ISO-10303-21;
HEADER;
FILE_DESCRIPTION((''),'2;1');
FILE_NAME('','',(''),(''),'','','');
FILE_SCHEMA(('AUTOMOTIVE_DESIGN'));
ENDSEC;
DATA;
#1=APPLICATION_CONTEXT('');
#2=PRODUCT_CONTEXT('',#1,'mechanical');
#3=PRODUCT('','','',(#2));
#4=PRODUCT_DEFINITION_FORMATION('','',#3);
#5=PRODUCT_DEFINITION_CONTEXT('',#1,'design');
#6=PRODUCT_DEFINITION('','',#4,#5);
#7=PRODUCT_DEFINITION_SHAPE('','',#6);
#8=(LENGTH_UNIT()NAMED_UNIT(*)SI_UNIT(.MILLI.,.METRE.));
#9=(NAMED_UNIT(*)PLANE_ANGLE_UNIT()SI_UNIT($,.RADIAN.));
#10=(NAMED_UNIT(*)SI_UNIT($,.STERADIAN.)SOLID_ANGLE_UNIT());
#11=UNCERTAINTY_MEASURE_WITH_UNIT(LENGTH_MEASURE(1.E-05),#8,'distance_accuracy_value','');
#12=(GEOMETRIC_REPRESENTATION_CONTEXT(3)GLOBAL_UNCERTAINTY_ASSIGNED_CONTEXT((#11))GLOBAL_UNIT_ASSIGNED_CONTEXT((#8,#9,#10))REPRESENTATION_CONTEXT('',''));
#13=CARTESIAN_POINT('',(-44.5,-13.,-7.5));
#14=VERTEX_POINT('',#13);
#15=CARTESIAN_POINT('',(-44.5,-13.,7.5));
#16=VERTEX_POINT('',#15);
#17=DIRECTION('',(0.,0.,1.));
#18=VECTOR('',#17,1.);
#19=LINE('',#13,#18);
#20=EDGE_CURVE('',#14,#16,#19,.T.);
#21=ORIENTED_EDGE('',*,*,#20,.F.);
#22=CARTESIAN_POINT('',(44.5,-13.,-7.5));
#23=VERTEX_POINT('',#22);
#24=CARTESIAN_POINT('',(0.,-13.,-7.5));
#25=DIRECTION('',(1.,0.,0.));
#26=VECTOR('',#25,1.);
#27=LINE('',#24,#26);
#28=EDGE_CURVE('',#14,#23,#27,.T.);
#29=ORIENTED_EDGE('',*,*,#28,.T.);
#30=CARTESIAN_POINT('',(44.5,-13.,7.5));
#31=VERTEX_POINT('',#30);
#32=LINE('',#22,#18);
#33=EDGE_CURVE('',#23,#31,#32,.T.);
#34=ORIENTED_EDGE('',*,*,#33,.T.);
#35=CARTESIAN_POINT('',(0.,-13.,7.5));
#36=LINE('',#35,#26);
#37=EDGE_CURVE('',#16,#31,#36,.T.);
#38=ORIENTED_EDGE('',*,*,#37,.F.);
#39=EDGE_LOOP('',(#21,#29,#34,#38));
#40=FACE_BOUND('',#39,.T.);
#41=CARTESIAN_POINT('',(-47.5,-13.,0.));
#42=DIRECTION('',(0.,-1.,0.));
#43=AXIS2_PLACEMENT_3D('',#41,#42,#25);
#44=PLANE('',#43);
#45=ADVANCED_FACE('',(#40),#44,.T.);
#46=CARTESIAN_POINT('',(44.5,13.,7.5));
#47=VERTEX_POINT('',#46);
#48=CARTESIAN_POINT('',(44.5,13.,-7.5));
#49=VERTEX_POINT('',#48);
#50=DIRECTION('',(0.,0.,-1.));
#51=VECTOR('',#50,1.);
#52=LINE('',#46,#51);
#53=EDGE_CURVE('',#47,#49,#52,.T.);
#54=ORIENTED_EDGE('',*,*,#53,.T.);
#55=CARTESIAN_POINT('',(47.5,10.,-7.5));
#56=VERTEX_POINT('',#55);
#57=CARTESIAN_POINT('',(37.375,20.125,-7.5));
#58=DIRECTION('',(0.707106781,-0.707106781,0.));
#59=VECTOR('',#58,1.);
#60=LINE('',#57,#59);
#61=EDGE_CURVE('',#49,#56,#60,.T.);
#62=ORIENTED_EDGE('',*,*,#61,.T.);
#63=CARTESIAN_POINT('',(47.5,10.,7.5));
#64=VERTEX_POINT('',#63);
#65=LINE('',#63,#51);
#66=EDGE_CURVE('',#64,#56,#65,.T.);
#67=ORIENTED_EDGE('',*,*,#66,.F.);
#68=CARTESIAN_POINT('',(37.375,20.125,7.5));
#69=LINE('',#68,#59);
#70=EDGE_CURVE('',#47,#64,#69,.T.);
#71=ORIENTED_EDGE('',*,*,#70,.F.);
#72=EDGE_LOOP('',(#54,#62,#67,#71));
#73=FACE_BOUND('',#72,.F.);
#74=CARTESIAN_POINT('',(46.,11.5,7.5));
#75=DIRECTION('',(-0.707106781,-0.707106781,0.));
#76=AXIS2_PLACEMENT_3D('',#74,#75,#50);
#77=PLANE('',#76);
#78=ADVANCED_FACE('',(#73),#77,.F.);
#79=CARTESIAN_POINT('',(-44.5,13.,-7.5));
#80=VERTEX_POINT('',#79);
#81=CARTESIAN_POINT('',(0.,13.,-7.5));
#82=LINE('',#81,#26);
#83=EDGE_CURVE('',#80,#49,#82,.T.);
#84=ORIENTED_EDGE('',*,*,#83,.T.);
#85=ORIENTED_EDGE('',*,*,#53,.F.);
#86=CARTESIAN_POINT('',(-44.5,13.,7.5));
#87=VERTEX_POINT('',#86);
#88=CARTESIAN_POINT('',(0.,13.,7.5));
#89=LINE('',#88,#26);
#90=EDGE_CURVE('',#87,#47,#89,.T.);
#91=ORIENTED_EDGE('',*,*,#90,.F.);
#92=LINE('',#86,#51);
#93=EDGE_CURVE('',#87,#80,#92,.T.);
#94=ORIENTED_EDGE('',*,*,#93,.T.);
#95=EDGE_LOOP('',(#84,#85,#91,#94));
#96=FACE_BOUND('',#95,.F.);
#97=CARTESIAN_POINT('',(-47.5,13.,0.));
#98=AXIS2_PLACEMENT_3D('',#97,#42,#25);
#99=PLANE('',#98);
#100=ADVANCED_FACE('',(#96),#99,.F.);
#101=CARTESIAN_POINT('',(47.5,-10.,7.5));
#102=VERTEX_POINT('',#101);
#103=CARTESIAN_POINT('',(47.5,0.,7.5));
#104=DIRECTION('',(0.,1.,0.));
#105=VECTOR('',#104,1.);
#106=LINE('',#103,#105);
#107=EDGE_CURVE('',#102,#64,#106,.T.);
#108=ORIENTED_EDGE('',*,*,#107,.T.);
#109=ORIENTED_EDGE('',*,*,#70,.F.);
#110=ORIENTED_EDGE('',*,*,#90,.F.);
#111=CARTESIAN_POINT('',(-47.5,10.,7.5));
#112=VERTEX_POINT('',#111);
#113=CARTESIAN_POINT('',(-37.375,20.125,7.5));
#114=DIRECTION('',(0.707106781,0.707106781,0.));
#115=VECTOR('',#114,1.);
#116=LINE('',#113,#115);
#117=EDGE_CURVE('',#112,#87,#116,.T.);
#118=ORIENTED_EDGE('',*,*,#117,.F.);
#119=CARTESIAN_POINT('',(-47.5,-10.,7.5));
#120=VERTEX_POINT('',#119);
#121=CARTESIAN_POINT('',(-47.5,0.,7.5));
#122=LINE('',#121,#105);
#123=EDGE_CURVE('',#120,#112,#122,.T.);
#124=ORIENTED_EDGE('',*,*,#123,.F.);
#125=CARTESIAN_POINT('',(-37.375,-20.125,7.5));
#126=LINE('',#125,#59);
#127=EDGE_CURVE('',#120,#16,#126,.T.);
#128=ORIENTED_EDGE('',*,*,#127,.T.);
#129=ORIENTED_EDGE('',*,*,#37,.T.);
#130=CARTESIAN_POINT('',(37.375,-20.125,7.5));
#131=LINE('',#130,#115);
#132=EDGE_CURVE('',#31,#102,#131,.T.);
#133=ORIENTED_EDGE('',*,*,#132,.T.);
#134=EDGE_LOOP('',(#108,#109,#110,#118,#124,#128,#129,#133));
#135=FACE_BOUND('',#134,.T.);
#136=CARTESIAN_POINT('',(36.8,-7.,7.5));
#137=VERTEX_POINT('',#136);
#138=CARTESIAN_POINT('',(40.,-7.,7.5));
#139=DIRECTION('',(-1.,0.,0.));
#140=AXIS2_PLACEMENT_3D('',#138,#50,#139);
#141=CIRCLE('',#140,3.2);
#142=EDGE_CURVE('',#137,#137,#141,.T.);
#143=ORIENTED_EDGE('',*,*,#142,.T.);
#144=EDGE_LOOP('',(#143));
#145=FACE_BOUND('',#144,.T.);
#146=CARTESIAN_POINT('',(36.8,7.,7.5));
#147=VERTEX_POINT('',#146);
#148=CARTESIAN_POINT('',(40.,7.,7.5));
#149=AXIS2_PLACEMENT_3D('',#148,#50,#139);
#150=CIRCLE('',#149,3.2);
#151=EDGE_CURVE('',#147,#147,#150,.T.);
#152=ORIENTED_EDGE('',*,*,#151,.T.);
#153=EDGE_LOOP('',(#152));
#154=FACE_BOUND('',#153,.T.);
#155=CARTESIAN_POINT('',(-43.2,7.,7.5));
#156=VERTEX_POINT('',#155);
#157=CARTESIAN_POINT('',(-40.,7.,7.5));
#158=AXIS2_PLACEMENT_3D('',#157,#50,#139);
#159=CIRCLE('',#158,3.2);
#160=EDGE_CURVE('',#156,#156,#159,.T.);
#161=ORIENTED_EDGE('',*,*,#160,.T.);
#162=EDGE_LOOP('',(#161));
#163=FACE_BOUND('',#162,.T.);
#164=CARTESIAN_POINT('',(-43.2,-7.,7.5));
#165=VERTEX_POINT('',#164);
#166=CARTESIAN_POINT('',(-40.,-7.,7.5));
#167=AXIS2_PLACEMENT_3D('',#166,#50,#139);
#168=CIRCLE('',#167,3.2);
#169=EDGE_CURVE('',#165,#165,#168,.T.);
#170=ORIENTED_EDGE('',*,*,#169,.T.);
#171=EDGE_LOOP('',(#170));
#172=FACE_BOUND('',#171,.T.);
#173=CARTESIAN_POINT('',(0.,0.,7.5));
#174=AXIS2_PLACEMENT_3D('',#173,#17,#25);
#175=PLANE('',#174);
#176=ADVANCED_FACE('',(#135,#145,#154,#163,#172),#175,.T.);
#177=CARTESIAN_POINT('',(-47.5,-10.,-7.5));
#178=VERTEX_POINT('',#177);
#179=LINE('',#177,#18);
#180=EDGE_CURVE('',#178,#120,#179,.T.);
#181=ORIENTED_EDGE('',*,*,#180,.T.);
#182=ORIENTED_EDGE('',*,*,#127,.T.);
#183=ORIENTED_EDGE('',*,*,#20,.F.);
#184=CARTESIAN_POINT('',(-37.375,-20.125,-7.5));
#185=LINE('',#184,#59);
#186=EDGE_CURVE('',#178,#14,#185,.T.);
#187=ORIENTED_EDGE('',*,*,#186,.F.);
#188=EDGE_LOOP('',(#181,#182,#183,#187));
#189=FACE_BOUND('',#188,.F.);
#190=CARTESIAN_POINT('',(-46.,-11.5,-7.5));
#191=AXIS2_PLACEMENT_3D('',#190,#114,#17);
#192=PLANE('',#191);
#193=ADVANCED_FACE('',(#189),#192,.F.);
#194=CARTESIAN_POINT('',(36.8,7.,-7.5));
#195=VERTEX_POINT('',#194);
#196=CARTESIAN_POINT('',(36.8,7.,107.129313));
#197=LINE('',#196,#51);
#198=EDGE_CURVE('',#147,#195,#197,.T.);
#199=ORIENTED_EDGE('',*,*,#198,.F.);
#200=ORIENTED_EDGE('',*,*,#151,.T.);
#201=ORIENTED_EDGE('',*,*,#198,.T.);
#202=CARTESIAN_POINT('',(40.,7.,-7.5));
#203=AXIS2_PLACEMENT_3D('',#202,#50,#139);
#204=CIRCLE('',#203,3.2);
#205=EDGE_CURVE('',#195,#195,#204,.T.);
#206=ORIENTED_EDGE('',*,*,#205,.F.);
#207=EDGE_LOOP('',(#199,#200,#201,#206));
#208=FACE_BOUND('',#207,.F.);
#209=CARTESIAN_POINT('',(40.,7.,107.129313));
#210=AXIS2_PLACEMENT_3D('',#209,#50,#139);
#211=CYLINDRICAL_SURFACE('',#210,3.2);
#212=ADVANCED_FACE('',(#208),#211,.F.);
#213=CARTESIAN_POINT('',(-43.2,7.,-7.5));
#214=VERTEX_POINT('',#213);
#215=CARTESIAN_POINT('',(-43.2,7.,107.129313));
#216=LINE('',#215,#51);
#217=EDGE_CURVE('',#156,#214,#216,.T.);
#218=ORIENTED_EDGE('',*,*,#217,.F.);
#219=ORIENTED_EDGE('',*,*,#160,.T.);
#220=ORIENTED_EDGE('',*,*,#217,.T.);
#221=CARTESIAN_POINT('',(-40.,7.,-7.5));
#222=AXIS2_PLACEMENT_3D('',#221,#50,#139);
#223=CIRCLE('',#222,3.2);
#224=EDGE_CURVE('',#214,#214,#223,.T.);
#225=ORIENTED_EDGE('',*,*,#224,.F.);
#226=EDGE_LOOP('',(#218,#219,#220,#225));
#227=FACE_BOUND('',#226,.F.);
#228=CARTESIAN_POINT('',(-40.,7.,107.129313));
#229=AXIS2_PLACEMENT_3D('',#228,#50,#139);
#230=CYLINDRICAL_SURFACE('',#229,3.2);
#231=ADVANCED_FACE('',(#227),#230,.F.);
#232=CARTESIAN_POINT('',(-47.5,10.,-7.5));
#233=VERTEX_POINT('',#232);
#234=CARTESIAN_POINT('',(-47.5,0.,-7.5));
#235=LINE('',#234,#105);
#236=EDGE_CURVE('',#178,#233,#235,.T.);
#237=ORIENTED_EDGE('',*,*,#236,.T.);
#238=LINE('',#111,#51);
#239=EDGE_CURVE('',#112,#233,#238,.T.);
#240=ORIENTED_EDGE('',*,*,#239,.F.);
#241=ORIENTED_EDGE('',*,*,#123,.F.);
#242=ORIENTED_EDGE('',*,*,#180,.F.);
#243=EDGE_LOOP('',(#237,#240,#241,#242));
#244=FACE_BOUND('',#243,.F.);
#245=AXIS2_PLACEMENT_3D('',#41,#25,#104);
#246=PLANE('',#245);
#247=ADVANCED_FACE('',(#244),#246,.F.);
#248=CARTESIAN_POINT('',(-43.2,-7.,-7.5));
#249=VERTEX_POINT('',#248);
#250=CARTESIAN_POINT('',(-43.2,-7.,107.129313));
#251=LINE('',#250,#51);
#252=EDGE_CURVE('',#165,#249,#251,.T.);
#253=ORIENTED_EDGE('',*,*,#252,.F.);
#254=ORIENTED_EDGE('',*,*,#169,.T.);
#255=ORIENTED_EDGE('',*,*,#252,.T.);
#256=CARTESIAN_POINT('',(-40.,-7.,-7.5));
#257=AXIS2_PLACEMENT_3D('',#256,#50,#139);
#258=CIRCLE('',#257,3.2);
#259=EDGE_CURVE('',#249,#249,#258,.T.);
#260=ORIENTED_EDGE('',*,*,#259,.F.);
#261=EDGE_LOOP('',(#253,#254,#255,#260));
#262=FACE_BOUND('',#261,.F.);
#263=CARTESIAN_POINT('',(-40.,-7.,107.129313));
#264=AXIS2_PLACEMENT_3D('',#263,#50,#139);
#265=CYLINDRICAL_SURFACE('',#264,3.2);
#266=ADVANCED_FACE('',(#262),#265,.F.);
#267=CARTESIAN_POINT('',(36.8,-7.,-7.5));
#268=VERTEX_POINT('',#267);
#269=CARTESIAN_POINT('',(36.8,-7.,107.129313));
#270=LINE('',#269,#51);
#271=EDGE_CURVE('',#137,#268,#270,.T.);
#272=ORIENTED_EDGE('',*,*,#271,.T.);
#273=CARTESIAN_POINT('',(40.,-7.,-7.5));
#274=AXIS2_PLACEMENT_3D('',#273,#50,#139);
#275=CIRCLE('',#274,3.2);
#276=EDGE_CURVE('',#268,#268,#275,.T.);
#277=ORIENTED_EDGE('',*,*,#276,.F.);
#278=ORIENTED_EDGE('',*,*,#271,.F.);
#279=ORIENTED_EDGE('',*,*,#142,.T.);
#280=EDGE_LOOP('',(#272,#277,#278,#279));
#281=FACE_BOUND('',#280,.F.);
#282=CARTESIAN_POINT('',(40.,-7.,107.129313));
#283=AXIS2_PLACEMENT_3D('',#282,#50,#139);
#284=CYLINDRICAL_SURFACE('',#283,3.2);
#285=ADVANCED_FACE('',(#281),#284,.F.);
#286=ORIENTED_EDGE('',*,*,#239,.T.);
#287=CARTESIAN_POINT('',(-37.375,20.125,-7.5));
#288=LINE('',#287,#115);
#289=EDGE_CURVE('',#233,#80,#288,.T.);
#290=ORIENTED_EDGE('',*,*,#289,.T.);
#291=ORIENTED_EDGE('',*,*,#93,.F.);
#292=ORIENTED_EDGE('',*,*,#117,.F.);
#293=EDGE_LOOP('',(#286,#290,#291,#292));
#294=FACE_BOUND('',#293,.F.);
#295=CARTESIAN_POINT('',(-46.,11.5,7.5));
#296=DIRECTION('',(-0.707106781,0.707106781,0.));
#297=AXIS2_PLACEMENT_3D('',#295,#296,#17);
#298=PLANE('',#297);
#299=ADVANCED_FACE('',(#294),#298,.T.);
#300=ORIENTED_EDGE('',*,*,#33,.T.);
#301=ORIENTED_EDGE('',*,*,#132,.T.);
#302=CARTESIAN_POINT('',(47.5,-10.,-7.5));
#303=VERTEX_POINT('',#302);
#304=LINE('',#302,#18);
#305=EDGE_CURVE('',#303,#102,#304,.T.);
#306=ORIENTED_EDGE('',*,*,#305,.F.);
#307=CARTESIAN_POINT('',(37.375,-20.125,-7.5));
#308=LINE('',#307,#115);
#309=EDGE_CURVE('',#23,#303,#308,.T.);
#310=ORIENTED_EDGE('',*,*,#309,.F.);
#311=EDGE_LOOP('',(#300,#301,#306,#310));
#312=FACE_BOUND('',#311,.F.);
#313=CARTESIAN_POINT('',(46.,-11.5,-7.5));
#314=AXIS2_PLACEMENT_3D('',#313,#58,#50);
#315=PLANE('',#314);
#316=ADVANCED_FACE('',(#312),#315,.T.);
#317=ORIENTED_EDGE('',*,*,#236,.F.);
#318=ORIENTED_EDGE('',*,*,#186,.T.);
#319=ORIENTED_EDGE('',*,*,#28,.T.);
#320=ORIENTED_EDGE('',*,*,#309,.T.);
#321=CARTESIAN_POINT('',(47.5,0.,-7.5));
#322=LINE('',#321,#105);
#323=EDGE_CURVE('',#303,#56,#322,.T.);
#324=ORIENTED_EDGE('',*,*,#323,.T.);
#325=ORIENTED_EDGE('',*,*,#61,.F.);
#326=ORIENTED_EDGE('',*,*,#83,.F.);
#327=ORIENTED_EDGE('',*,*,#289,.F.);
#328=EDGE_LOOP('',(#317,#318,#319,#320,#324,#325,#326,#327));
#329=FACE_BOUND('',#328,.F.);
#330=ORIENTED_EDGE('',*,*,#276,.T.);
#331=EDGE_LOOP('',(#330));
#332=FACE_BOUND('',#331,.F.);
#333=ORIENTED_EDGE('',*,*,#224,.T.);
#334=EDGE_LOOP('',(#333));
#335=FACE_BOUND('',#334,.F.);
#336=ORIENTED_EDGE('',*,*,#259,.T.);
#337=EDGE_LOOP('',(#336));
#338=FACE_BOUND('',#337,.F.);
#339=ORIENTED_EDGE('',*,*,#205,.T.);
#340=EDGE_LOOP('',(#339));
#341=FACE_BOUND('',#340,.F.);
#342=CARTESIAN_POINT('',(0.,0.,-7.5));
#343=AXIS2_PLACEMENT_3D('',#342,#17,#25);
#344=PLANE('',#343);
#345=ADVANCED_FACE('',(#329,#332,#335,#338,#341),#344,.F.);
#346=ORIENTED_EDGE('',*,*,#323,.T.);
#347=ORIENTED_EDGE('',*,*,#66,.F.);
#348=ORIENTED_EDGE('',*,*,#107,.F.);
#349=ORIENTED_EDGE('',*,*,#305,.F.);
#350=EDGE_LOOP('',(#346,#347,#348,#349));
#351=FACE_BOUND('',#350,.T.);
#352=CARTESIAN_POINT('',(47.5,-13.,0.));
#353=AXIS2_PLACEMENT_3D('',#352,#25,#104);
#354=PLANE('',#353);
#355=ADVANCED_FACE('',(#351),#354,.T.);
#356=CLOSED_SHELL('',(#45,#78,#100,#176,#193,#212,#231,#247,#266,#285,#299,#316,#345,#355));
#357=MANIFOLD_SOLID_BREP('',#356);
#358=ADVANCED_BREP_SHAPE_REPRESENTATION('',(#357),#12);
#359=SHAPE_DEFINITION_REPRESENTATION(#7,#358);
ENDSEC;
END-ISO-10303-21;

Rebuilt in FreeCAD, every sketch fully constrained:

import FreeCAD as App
import Part
import Sketcher

V = App.Vector


def edges_at(feature, points):
    """Names of the edges that pass closest to the given points."""
    edges = feature.Shape.Edges
    near = lambda p: min(range(len(edges)), key=lambda i: edges[i].distToShape(Part.Vertex(*p))[0])
    return sorted({f"Edge{near(p) + 1}" for p in points})

doc = App.newDocument("Part")
params = doc.addObject("Spreadsheet::Sheet", "Params")
for row, (alias, value) in enumerate([
    ("sketch1_width", "95 mm"),
    ("sketch1_height", "26 mm"),
    ("pad1_length", "15 mm"),
    ("sketch2_diameter", "6.4 mm"),
    ("hole_diameter", "6.4 mm"),
    ("chamfer_size", "3 mm"),
], start=1):
    params.set(f"A{row}", alias)
    params.set(f"B{row}", "=" + value)
    params.setAlias(f"B{row}", alias)

body = doc.addObject("PartDesign::Body", "Body")

# Sketch on XY plane
sketch1 = body.newObject("Sketcher::SketchObject", "Sketch")
sketch1.AttachmentSupport = (doc.getObject("XY_Plane"), [""])
sketch1.MapMode = "FlatFace"
sketch1.addGeometry([
    Part.LineSegment(V(-47.5, 13, 0), V(-47.5, -13, 0)),
    Part.LineSegment(V(-47.5, -13, 0), V(47.5, -13, 0)),
    Part.LineSegment(V(47.5, -13, 0), V(47.5, 13, 0)),
    Part.LineSegment(V(47.5, 13, 0), V(-47.5, 13, 0)),
], False)
sketch1.addConstraint([
    Sketcher.Constraint("Coincident", 0, 2, 1, 1),
    Sketcher.Constraint("Coincident", 1, 2, 2, 1),
    Sketcher.Constraint("Coincident", 2, 2, 3, 1),
    Sketcher.Constraint("Coincident", 3, 2, 0, 1),
    Sketcher.Constraint("Vertical", 0),
    Sketcher.Constraint("Horizontal", 1),
    Sketcher.Constraint("Vertical", 2),
    Sketcher.Constraint("Horizontal", 3),
    Sketcher.Constraint("Symmetric", 0, 2, 2, 2, -1, 1),
    Sketcher.Constraint("DistanceX", 1, 1, 1, 2, 95.0),
    Sketcher.Constraint("DistanceY", 0, 2, 0, 1, 26.0),
])
sketch1.setExpression("Constraints[9]", "Params.sketch1_width")
sketch1.setExpression("Constraints[10]", "Params.sketch1_height")
pad1 = body.newObject("PartDesign::Pad", "Pad")
pad1.Profile = sketch1
pad1.setExpression("Length", "Params.pad1_length")
pad1.Midplane = True

# Sketch on XY plane
sketch2 = body.newObject("Sketcher::SketchObject", "Sketch001")
sketch2.AttachmentSupport = (doc.getObject("XY_Plane"), [""])
sketch2.MapMode = "FlatFace"
sketch2.AttachmentOffset = App.Placement(V(0, 0, 7.5), App.Rotation())
sketch2.addGeometry([
    Part.Circle(V(-40, 7, 0), V(0, 0, 1), 3.2),
    Part.Circle(V(-40, -7, 0), V(0, 0, 1), 3.2),
    Part.Circle(V(40, 7, 0), V(0, 0, 1), 3.2),
    Part.Circle(V(40, -7, 0), V(0, 0, 1), 3.2),
], False)
sketch2.addConstraint([
    Sketcher.Constraint("Equal", 0, 1),
    Sketcher.Constraint("Equal", 1, 2),
    Sketcher.Constraint("Equal", 2, 3),
    Sketcher.Constraint("Symmetric", 1, 3, 2, 3, -1, 1),
    Sketcher.Constraint("Symmetric", 0, 3, 3, 3, -1, 1),
    Sketcher.Constraint("Symmetric", 0, 3, 2, 3, -2),
    Sketcher.Constraint("Diameter", 0, 6.4),
    Sketcher.Constraint("DistanceX", 0, 3, -1, 1, 40.0),
    Sketcher.Constraint("DistanceY", -1, 1, 0, 3, 7.0),
])
sketch2.setExpression("Constraints[6]", "Params.sketch2_diameter")
doc.recompute()
hole = body.newObject("PartDesign::Hole", "Hole")
hole.Profile = sketch2
hole.ThreadType = "None"
hole.setExpression("Diameter", "Params.hole_diameter")
hole.DepthType = "ThroughAll"
doc.recompute()

chamfer = body.newObject("PartDesign::Chamfer", "Chamfer")
chamfer.Base = (hole, edges_at(hole, [
    (-47.5, 13, 0),
    (47.5, 13, 0),
    (47.5, -13, 0),
    (-47.5, -13, 0),
]))
chamfer.setExpression("Size", "Params.chamfer_size")

doc.recompute()
